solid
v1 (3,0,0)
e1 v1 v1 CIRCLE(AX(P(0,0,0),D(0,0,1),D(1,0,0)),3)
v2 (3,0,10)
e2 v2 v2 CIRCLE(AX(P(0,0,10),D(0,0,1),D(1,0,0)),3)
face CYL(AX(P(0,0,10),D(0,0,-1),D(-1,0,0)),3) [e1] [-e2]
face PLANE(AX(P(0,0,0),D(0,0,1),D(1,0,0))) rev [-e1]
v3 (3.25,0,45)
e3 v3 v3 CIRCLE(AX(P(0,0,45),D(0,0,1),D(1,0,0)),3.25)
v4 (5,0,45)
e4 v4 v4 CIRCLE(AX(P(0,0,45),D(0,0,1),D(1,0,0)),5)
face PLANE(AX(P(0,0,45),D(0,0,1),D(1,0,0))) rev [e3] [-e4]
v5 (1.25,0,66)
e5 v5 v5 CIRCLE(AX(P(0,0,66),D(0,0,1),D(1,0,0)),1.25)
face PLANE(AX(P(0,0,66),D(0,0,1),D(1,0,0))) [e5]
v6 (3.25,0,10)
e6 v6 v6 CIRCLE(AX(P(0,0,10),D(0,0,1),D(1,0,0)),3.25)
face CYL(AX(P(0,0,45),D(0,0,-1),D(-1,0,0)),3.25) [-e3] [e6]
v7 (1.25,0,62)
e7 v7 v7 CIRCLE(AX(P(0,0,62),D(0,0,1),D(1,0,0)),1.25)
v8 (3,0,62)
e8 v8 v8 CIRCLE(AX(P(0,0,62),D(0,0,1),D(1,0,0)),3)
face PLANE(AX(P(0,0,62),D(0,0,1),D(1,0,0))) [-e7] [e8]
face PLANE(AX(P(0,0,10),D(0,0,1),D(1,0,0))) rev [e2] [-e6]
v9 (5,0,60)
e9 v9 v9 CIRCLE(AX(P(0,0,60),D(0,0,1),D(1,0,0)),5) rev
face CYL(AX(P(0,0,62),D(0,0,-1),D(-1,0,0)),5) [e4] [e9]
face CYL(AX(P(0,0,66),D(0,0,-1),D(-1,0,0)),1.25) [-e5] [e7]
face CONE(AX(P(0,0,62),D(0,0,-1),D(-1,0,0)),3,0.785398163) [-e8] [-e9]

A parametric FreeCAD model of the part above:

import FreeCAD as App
import Part
import Sketcher
from FreeCAD import Vector
Q = App.Units.Quantity


def edges_at(feature, points):
    """Names of the edges that pass closest to the given points."""
    edges = feature.Shape.Edges
    near = lambda p: min(range(len(edges)), key=lambda i: edges[i].distToShape(Part.Vertex(*p))[0])
    return sorted({f"Edge{near(p) + 1}" for p in points})

doc = App.newDocument("Part")
body = doc.addObject("PartDesign::Body", "Body")

sketch1 = body.newObject("Sketcher::SketchObject", "Sketch")
sketch1.AttachmentSupport = (doc.getObject("XY_Plane"), [""])
sketch1.MapMode = "FlatFace"
sketch1.addGeometry(Part.Circle(Vector(0, 0, 0), Vector(0, 0, 1), 3), False)
sketch1.addConstraint(Sketcher.Constraint("Coincident", 0, 3, -1, 1))
sketch1.addConstraint(Sketcher.Constraint("Diameter", 0, Q("6 mm")))
pad1 = body.newObject("PartDesign::Pad", "Pad")
pad1.Profile = sketch1
pad1.Length = 10

sketch2 = body.newObject("Sketcher::SketchObject", "Sketch001")
sketch2.AttachmentSupport = (doc.getObject("XY_Plane"), [""])
sketch2.MapMode = "FlatFace"
sketch2.AttachmentOffset = App.Placement(Vector(0, 0, 10), App.Rotation())
sketch2.addGeometry(Part.Circle(Vector(0, 0, 0), Vector(0, 0, 1), 3.2), False)
sketch2.addConstraint(Sketcher.Constraint("Coincident", 0, 3, -1, 1))
sketch2.addConstraint(Sketcher.Constraint("Diameter", 0, Q("6.5 mm")))
pad2 = body.newObject("PartDesign::Pad", "Pad001")
pad2.Profile = sketch2
pad2.Length = 35

sketch3 = body.newObject("Sketcher::SketchObject", "Sketch002")
sketch3.AttachmentSupport = (doc.getObject("XY_Plane"), [""])
sketch3.MapMode = "FlatFace"
sketch3.AttachmentOffset = App.Placement(Vector(0, 0, 45), App.Rotation())
sketch3.addGeometry(Part.Circle(Vector(0, 0, 0), Vector(0, 0, 1), 5), False)
sketch3.addConstraint(Sketcher.Constraint("Coincident", 0, 3, -1, 1))
sketch3.addConstraint(Sketcher.Constraint("Diameter", 0, Q("10 mm")))
pad3 = body.newObject("PartDesign::Pad", "Pad002")
pad3.Profile = sketch3
pad3.Length = 17
doc.recompute()

chamfer = body.newObject("PartDesign::Chamfer", "Chamfer")
chamfer.Base = (pad3, edges_at(pad3, [(-5, 0, 62)]))
chamfer.Size = 2

sketch4 = body.newObject("Sketcher::SketchObject", "Sketch003")
sketch4.AttachmentSupport = (doc.getObject("XY_Plane"), [""])
sketch4.MapMode = "FlatFace"
sketch4.AttachmentOffset = App.Placement(Vector(0, 0, 62), App.Rotation())
sketch4.addGeometry(Part.Circle(Vector(0, 0, 0), Vector(0, 0, 1), 1.2), False)
sketch4.addConstraint(Sketcher.Constraint("Coincident", 0, 3, -1, 1))
sketch4.addConstraint(Sketcher.Constraint("Diameter", 0, Q("2.5 mm")))
pad4 = body.newObject("PartDesign::Pad", "Pad003")
pad4.Profile = sketch4
pad4.Length = 4

doc.recompute()
